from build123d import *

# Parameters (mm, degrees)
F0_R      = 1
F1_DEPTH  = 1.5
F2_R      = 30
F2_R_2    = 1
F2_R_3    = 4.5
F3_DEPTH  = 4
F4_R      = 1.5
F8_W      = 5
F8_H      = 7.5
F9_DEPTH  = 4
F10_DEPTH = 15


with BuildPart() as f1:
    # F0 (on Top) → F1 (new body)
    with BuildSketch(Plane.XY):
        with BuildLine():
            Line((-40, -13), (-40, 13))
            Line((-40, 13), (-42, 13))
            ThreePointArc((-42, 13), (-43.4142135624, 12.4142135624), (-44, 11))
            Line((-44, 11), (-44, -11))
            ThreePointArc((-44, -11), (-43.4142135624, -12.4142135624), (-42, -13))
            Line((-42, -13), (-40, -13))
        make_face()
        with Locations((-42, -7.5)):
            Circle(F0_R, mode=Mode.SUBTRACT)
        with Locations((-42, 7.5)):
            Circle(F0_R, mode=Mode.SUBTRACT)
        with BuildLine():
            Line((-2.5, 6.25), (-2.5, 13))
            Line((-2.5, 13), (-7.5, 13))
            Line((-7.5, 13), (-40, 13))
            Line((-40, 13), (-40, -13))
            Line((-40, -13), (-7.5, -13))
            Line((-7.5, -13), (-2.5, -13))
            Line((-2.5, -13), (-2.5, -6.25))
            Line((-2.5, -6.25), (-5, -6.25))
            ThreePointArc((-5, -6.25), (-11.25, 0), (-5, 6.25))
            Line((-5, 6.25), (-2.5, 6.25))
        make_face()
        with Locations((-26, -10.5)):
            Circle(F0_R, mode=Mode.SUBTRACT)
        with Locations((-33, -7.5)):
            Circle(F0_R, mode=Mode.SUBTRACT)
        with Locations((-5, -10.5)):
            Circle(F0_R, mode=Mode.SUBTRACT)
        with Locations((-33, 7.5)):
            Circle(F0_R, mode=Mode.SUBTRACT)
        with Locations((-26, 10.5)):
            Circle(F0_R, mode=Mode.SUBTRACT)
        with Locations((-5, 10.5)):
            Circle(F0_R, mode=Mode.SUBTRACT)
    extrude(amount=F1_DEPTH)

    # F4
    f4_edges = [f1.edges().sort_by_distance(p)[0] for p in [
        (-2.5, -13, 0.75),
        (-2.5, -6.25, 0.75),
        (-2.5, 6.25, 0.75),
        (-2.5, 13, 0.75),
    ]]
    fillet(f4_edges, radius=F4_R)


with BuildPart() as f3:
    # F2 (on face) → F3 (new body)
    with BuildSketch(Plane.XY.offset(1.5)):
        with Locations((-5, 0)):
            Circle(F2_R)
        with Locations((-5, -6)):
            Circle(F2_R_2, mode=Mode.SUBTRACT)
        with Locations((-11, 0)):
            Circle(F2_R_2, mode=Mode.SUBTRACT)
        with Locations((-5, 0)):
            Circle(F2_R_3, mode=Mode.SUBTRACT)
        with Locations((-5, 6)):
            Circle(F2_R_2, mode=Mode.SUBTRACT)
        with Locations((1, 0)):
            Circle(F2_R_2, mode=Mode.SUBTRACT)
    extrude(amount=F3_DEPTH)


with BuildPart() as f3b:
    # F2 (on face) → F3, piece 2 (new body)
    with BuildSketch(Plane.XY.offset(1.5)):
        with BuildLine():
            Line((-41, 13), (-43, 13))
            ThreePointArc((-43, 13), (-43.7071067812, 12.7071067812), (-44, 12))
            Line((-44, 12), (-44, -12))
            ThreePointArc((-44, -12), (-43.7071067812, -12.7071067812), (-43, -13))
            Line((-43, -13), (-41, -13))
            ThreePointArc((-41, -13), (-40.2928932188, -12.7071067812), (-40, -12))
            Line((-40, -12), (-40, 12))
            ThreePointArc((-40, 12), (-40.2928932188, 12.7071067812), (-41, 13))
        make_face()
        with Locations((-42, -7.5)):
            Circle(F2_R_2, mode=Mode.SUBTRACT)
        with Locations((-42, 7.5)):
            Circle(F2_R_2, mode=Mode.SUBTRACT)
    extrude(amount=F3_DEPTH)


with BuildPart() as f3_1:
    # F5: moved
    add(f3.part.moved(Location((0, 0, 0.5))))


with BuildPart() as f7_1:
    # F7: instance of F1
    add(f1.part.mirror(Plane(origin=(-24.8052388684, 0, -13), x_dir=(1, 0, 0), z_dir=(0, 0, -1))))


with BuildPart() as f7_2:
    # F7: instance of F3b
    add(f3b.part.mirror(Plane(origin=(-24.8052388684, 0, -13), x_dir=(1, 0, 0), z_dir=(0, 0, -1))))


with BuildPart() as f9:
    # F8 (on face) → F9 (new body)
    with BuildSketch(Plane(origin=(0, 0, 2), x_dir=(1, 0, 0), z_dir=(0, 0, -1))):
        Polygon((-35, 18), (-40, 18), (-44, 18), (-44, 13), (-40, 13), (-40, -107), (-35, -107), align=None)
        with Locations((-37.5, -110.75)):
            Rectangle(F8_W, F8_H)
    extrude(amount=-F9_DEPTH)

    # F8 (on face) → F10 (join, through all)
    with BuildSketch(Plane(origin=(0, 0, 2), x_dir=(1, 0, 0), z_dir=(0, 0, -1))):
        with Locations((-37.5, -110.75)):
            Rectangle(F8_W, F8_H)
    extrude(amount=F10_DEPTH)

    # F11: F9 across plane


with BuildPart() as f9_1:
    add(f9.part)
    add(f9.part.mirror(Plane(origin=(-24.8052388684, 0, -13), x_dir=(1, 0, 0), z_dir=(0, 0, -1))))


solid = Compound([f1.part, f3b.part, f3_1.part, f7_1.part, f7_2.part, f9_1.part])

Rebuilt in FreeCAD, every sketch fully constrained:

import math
import FreeCAD as App
import Part
import Sketcher
from FreeCAD import Vector
Q = App.Units.Quantity


def edges_at(feature, points):
    """Names of the edges that pass closest to the given points."""
    edges = feature.Shape.Edges
    near = lambda p: min(range(len(edges)), key=lambda i: edges[i].distToShape(Part.Vertex(*p))[0])
    return sorted({f"Edge{near(p) + 1}" for p in points})

doc = App.newDocument("Part")
params = doc.addObject("Spreadsheet::Sheet", "Params")
for row, (alias, value) in enumerate([
    ("sketch1_diameter", "2 mm"),
    ("sketch1_radius", "2 mm"),
    ("sketch1_height", "22 mm"),
    ("sketch1_radius2", "6.25 mm"),
    ("sketch1_width", "39.5 mm"),
    ("pad1_length", "1.5 mm"),
    ("fillet_radius", "1.5 mm"),
    ("sketch2_diameter", "60 mm"),
    ("sketch2_diameter2", "2 mm"),
    ("sketch2_diameter3", "9 mm"),
    ("pad2_length", "4 mm"),
    ("sketch3_diameter", "2 mm"),
    ("sketch3_width", "2 mm"),
    ("sketch3_height", "24 mm"),
    ("pad3_length", "4 mm"),
    ("sketch4_width", "9 mm"),
    ("sketch4_width2", "4 mm"),
    ("sketch4_height", "127.5 mm"),
    ("pad4_length", "4 mm"),
    ("sketch5_width", "5 mm"),
    ("sketch5_height", "7.5 mm"),
    ("pad5_length", "15 mm"),
], start=1):
    params.set(f"A{row}", alias)
    params.set(f"B{row}", "=" + value)
    params.setAlias(f"B{row}", alias)

body = doc.addObject("PartDesign::Body", "Body")

# Sketch on XY plane
sketch1 = body.newObject("Sketcher::SketchObject", "Sketch")
sketch1.AttachmentSupport = (doc.getObject("XY_Plane"), [""])
sketch1.MapMode = "FlatFace"
sketch1.addGeometry([
    Part.LineSegment(Vector(-42, -13, 0), Vector(-2.5, -13, 0)),  # 0
    Part.LineSegment(Vector(-2.5, -13, 0), Vector(-2.5, -6.2, 0)),  # 1
    Part.LineSegment(Vector(-2.5, -6.2, 0), Vector(-5, -6.2, 0)),  # 2
    Part.ArcOfCircle(Part.Circle(Vector(-5, 0, 0), Vector(0, 0, 1), 6.2), math.radians(90), math.radians(270)),  # 3
    Part.LineSegment(Vector(-5, 6.2, 0), Vector(-2.5, 6.2, 0)),  # 4
    Part.LineSegment(Vector(-2.5, 6.2, 0), Vector(-2.5, 13, 0)),  # 5
    Part.LineSegment(Vector(-2.5, 13, 0), Vector(-42, 13, 0)),  # 6
    Part.ArcOfCircle(Part.Circle(Vector(-42, 11, 0), Vector(0, 0, 1), 2), math.radians(90), math.radians(180)),  # 7
    Part.LineSegment(Vector(-44, 11, 0), Vector(-44, -11, 0)),  # 8
    Part.ArcOfCircle(Part.Circle(Vector(-42, -11, 0), Vector(0, 0, 1), 2), math.radians(180), math.radians(270)),  # 9
    Part.Circle(Vector(-42, -7.5, 0), Vector(0, 0, 1), 1),  # 10
    Part.Circle(Vector(-26, -10.5, 0), Vector(0, 0, 1), 1),  # 11
    Part.Circle(Vector(-33, -7.5, 0), Vector(0, 0, 1), 1),  # 12
    Part.Circle(Vector(-5, -10.5, 0), Vector(0, 0, 1), 1),  # 13
    Part.Circle(Vector(-42, 7.5, 0), Vector(0, 0, 1), 1),  # 14
    Part.Circle(Vector(-33, 7.5, 0), Vector(0, 0, 1), 1),  # 15
    Part.Circle(Vector(-26, 10.5, 0), Vector(0, 0, 1), 1),  # 16
    Part.Circle(Vector(-5, 10.5, 0), Vector(0, 0, 1), 1),  # 17
], False)
sketch1.addConstraint([
    Sketcher.Constraint("Coincident", 0, 2, 1, 1),
    Sketcher.Constraint("Coincident", 1, 2, 2, 1),
    Sketcher.Constraint("Tangent", 2, 2, 3, 2),
    Sketcher.Constraint("Tangent", 3, 1, 4, 1),
    Sketcher.Constraint("Coincident", 4, 2, 5, 1),
    Sketcher.Constraint("Coincident", 5, 2, 6, 1),
    Sketcher.Constraint("Tangent", 6, 2, 7, 1),
    Sketcher.Constraint("Tangent", 7, 2, 8, 1),
    Sketcher.Constraint("Tangent", 8, 2, 9, 1),
    Sketcher.Constraint("Tangent", 9, 2, 0, 1),
    Sketcher.Constraint("Horizontal", 0),
    Sketcher.Constraint("Vertical", 1),
    Sketcher.Constraint("Horizontal", 2),
    Sketcher.Constraint("Horizontal", 4),
    Sketcher.Constraint("Vertical", 5),
    Sketcher.Constraint("Horizontal", 6),
    Sketcher.Constraint("Vertical", 8),
    Sketcher.Constraint("Equal", 7, 9),
    Sketcher.Constraint("Equal", 10, 11),
    Sketcher.Constraint("Equal", 11, 12),
    Sketcher.Constraint("Equal", 12, 13),
    Sketcher.Constraint("Equal", 13, 14),
    Sketcher.Constraint("Equal", 14, 15),
    Sketcher.Constraint("Equal", 15, 16),
    Sketcher.Constraint("Equal", 16, 17),
    Sketcher.Constraint("Symmetric", 10, 3, 14, 3, -1),
    Sketcher.Constraint("Symmetric", 12, 3, 15, 3, -1),
    Sketcher.Constraint("Symmetric", 11, 3, 16, 3, -1),
    Sketcher.Constraint("Symmetric", 13, 3, 17, 3, -1),
    Sketcher.Constraint("Symmetric", 1, 2, 4, 2, -1),
    Sketcher.Constraint("Horizontal", 10, 3, 12, 3),
    Sketcher.Constraint("Horizontal", 11, 3, 13, 3),
    Sketcher.Constraint("Vertical", 9, 3, 10, 3),
    Sketcher.Constraint("Vertical", 3, 3, 13, 3),
    Sketcher.Constraint("Equal", 1, 5),
    Sketcher.Constraint("Diameter", 10, Q("2 mm")),
    Sketcher.Constraint("Radius", 7, Q("2 mm")),
    Sketcher.Constraint("DistanceY", 8, 2, 8, 1, Q("22 mm")),
    Sketcher.Constraint("Radius", 3, Q("6.25 mm")),
    Sketcher.Constraint("DistanceX", 0, 1, 0, 2, Q("39.5 mm")),
    Sketcher.Constraint("DistanceX", 2, 2, 2, 1, Q("2.5 mm")),
    Sketcher.Constraint("DistanceX", 3, 3, -1, 1, Q("5 mm")),
    Sketcher.Constraint("DistanceX", 11, 3, -1, 1, Q("26 mm")),
    Sketcher.Constraint("DistanceX", 12, 3, -1, 1, Q("33 mm")),
    Sketcher.Constraint("DistanceY", 11, 3, 10, 3, Q("3 mm")),
    Sketcher.Constraint("DistanceY", 10, 3, 14, 3, Q("15 mm")),
])
sketch1.setExpression("Constraints[35]", "Params.sketch1_diameter")
sketch1.setExpression("Constraints[36]", "Params.sketch1_radius")
sketch1.setExpression("Constraints[37]", "Params.sketch1_height")
sketch1.setExpression("Constraints[38]", "Params.sketch1_radius2")
sketch1.setExpression("Constraints[39]", "Params.sketch1_width")
pad1 = body.newObject("PartDesign::Pad", "Pad")
pad1.Profile = sketch1
pad1.setExpression("Length", "Params.pad1_length")
doc.recompute()

fillet = body.newObject("PartDesign::Fillet", "Fillet")
fillet.Base = (pad1, edges_at(pad1, [
    (-2.5, -13, 0.75),
    (-2.5, -6.25, 0.75),
    (-2.5, 6.25, 0.75),
    (-2.5, 13, 0.75),
]))
fillet.setExpression("Radius", "Params.fillet_radius")
body2 = doc.addObject("PartDesign::Body", "Body001")

# Sketch on XY plane
sketch2 = body2.newObject("Sketcher::SketchObject", "Sketch001")
sketch2.AttachmentSupport = (doc.getObject("XY_Plane001"), [""])
sketch2.MapMode = "FlatFace"
sketch2.AttachmentOffset = App.Placement(Vector(0, 0, 1.5), App.Rotation())
sketch2.addGeometry([
    Part.Circle(Vector(-5, 0, 0), Vector(0, 0, 1), 30),  # 0
    Part.Circle(Vector(-5, -6, 0), Vector(0, 0, 1), 1),  # 1
    Part.Circle(Vector(-11, 0, 0), Vector(0, 0, 1), 1),  # 2
    Part.Circle(Vector(-5, 0, 0), Vector(0, 0, 1), 4.5),  # 3
    Part.Circle(Vector(1, 0, 0), Vector(0, 0, 1), 1),  # 4
    Part.Circle(Vector(-5, 6, 0), Vector(0, 0, 1), 1),  # 5
], False)
sketch2.addConstraint([
    Sketcher.Constraint("Coincident", 3, 3, 0, 3),
    Sketcher.Constraint("Equal", 1, 2),
    Sketcher.Constraint("Equal", 2, 4),
    Sketcher.Constraint("Equal", 4, 5),
    Sketcher.Constraint("Symmetric", 1, 3, 5, 3, -1),
    Sketcher.Constraint("PointOnObject", 0, 3, -1),
    Sketcher.Constraint("PointOnObject", 2, 3, -1),
    Sketcher.Constraint("PointOnObject", 4, 3, -1),
    Sketcher.Constraint("Vertical", 0, 3, 1, 3),
    Sketcher.Constraint("Diameter", 0, Q("60 mm")),
    Sketcher.Constraint("Diameter", 1, Q("2 mm")),
    Sketcher.Constraint("Diameter", 3, Q("9 mm")),
    Sketcher.Constraint("DistanceX", 0, 3, -1, 1, Q("5 mm")),
    Sketcher.Constraint("DistanceY", 1, 3, -1, 1, Q("6 mm")),
    Sketcher.Constraint("DistanceX", 2, 3, -1, 1, Q("11 mm")),
    Sketcher.Constraint("DistanceX", -1, 1, 4, 3, Q("1 mm")),
])
sketch2.setExpression("Constraints[9]", "Params.sketch2_diameter")
sketch2.setExpression("Constraints[10]", "Params.sketch2_diameter2")
sketch2.setExpression("Constraints[11]", "Params.sketch2_diameter3")
pad2 = body2.newObject("PartDesign::Pad", "Pad001")
pad2.Profile = sketch2
pad2.setExpression("Length", "Params.pad2_length")
body3 = doc.addObject("PartDesign::Body", "Body002")

# Sketch on XY plane
sketch3 = body3.newObject("Sketcher::SketchObject", "Sketch002")
sketch3.AttachmentSupport = (doc.getObject("XY_Plane002"), [""])
sketch3.MapMode = "FlatFace"
sketch3.AttachmentOffset = App.Placement(Vector(0, 0, 1.5), App.Rotation())
sketch3.addGeometry([
    Part.LineSegment(Vector(-41, 13, 0), Vector(-43, 13, 0)),  # 0
    Part.ArcOfCircle(Part.Circle(Vector(-43, 12, 0), Vector(0, 0, 1), 1), math.radians(90), math.radians(180)),  # 1
    Part.LineSegment(Vector(-44, 12, 0), Vector(-44, -12, 0)),  # 2
    Part.ArcOfCircle(Part.Circle(Vector(-43, -12, 0), Vector(0, 0, 1), 1), math.radians(180), math.radians(270)),  # 3
    Part.LineSegment(Vector(-43, -13, 0), Vector(-41, -13, 0)),  # 4
    Part.ArcOfCircle(Part.Circle(Vector(-41, -12, 0), Vector(0, 0, 1), 1), math.radians(-90), math.radians(0)),  # 5
    Part.LineSegment(Vector(-40, -12, 0), Vector(-40, 12, 0)),  # 6
    Part.ArcOfCircle(Part.Circle(Vector(-41, 12, 0), Vector(0, 0, 1), 1), math.radians(0), math.radians(90)),  # 7
    Part.Circle(Vector(-42, -7.5, 0), Vector(0, 0, 1), 1),  # 8
    Part.Circle(Vector(-42, 7.5, 0), Vector(0, 0, 1), 1),  # 9
], False)
sketch3.addConstraint([
    Sketcher.Constraint("Tangent", 0, 2, 1, 1),
    Sketcher.Constraint("Tangent", 1, 2, 2, 1),
    Sketcher.Constraint("Tangent", 2, 2, 3, 1),
    Sketcher.Constraint("Tangent", 3, 2, 4, 1),
    Sketcher.Constraint("Tangent", 4, 2, 5, 1),
    Sketcher.Constraint("Tangent", 5, 2, 6, 1),
    Sketcher.Constraint("Tangent", 6, 2, 7, 1),
    Sketcher.Constraint("Tangent", 7, 2, 0, 1),
    Sketcher.Constraint("Horizontal", 0),
    Sketcher.Constraint("Vertical", 2),
    Sketcher.Constraint("Horizontal", 4),
    Sketcher.Constraint("Vertical", 6),
    Sketcher.Constraint("Equal", 1, 3),
    Sketcher.Constraint("Equal", 3, 5),
    Sketcher.Constraint("Equal", 5, 7),
    Sketcher.Constraint("Equal", 7, 8),
    Sketcher.Constraint("Equal", 8, 9),
    Sketcher.Constraint("Symmetric", 8, 3, 9, 3, -1),
    Sketcher.Constraint("Diameter", 8, Q("2 mm")),
    Sketcher.Constraint("DistanceX", 0, 2, 0, 1, Q("2 mm")),
    Sketcher.Constraint("DistanceY", 2, 2, 2, 1, Q("24 mm")),
    Sketcher.Constraint("DistanceX", 1, 3, -1, 1, Q("43 mm")),
    Sketcher.Constraint("DistanceY", -1, 1, 1, 3, Q("12 mm")),
    Sketcher.Constraint("DistanceX", 8, 3, -1, 1, Q("42 mm")),
    Sketcher.Constraint("DistanceY", 8, 3, 9, 3, Q("15 mm")),
])
sketch3.setExpression("Constraints[18]", "Params.sketch3_diameter")
sketch3.setExpression("Constraints[19]", "Params.sketch3_width")
sketch3.setExpression("Constraints[20]", "Params.sketch3_height")
pad3 = body3.newObject("PartDesign::Pad", "Pad002")
pad3.Profile = sketch3
pad3.setExpression("Length", "Params.pad3_length")
body4 = doc.addObject("PartDesign::Body", "Body003")
doc.recompute()

body2.Placement = App.Placement(Vector(0, 0, 0.5), App.Rotation(Vector(0, 0, 1), 0))
boolean = body4.newObject("PartDesign::Boolean", "Boolean")
boolean.Type = "Fuse"
boolean.addObjects([body2])
body5 = doc.addObject("PartDesign::Body", "Body004")
doc.recompute()

mirroring = doc.addObject("Part::Mirroring", "Mirroring")
mirroring.Source = body
mirroring.Base = Vector(-24.805239, 0, -13)
mirroring.Normal = Vector(0, 0, -1)
body5.BaseFeature = mirroring
doc.recompute()
body6 = doc.addObject("PartDesign::Body", "Body005")
doc.recompute()

mirroring2 = doc.addObject("Part::Mirroring", "Mirroring001")
mirroring2.Source = body3
mirroring2.Base = Vector(-24.805239, 0, -13)
mirroring2.Normal = Vector(0, 0, -1)
body6.BaseFeature = mirroring2
doc.recompute()
body7 = doc.addObject("PartDesign::Body", "Body006")

# Sketch on XY plane
sketch4 = body7.newObject("Sketcher::SketchObject", "Sketch003")
sketch4.AttachmentSupport = (doc.getObject("XY_Plane006"), [""])
sketch4.MapMode = "FlatFace"
sketch4.AttachmentOffset = App.Placement(Vector(0, 0, 2), App.Rotation())
sketch4.addGeometry([
    Part.LineSegment(Vector(-35, -18, 0), Vector(-44, -18, 0)),  # 0
    Part.LineSegment(Vector(-44, -18, 0), Vector(-44, -13, 0)),  # 1
    Part.LineSegment(Vector(-44, -13, 0), Vector(-40, -13, 0)),  # 2
    Part.LineSegment(Vector(-40, -13, 0), Vector(-40, 114.5, 0)),  # 3
    Part.LineSegment(Vector(-40, 114.5, 0), Vector(-35, 114.5, 0)),  # 4
    Part.LineSegment(Vector(-35, 114.5, 0), Vector(-35, -18, 0)),  # 5
], False)
sketch4.addConstraint([
    Sketcher.Constraint("Coincident", 0, 2, 1, 1),
    Sketcher.Constraint("Coincident", 1, 2, 2, 1),
    Sketcher.Constraint("Coincident", 2, 2, 3, 1),
    Sketcher.Constraint("Coincident", 3, 2, 4, 1),
    Sketcher.Constraint("Coincident", 4, 2, 5, 1),
    Sketcher.Constraint("Coincident", 5, 2, 0, 1),
    Sketcher.Constraint("Horizontal", 0),
    Sketcher.Constraint("Vertical", 1),
    Sketcher.Constraint("Horizontal", 2),
    Sketcher.Constraint("Vertical", 3),
    Sketcher.Constraint("Horizontal", 4),
    Sketcher.Constraint("Vertical", 5),
    Sketcher.Constraint("Equal", 4, 1),
    Sketcher.Constraint("DistanceX", 0, 2, 0, 1, Q("9 mm")),
    Sketcher.Constraint("DistanceX", 2, 1, 2, 2, Q("4 mm")),
    Sketcher.Constraint("DistanceY", 3, 1, 3, 2, Q("127.5 mm")),
    Sketcher.Constraint("DistanceX", 0, 2, -1, 1, Q("44 mm")),
    Sketcher.Constraint("DistanceY", 0, 2, -1, 1, Q("18 mm")),
])
sketch4.setExpression("Constraints[13]", "Params.sketch4_width")
sketch4.setExpression("Constraints[14]", "Params.sketch4_width2")
sketch4.setExpression("Constraints[15]", "Params.sketch4_height")
pad4 = body7.newObject("PartDesign::Pad", "Pad003")
pad4.Profile = sketch4
pad4.setExpression("Length", "Params.pad4_length")

# Sketch on XY plane
sketch5 = body7.newObject("Sketcher::SketchObject", "Sketch004")
sketch5.AttachmentSupport = (doc.getObject("XY_Plane006"), [""])
sketch5.MapMode = "FlatFace"
sketch5.AttachmentOffset = App.Placement(Vector(0, 0, 2), App.Rotation())
sketch5.addGeometry([
    Part.LineSegment(Vector(-40, 107, 0), Vector(-40, 114, 0)),
    Part.LineSegment(Vector(-40, 114, 0), Vector(-35, 114, 0)),
    Part.LineSegment(Vector(-35, 114, 0), Vector(-35, 107, 0)),
    Part.LineSegment(Vector(-35, 107, 0), Vector(-40, 107, 0)),
], False)
sketch5.addConstraint([
    Sketcher.Constraint("Coincident", 0, 2, 1, 1),
    Sketcher.Constraint("Coincident", 1, 2, 2, 1),
    Sketcher.Constraint("Coincident", 2, 2, 3, 1),
    Sketcher.Constraint("Coincident", 3, 2, 0, 1),
    Sketcher.Constraint("Vertical", 0),
    Sketcher.Constraint("Horizontal", 1),
    Sketcher.Constraint("Vertical", 2),
    Sketcher.Constraint("Horizontal", 3),
    Sketcher.Constraint("DistanceX", 1, 1, 1, 2, Q("5 mm")),
    Sketcher.Constraint("DistanceY", 0, 1, 0, 2, Q("7.5 mm")),
    Sketcher.Constraint("DistanceX", 0, 2, -1, 1, Q("40 mm")),
    Sketcher.Constraint("DistanceY", -1, 1, 2, 2, Q("107 mm")),
])
sketch5.setExpression("Constraints[8]", "Params.sketch5_width")
sketch5.setExpression("Constraints[9]", "Params.sketch5_height")
pad5 = body7.newObject("PartDesign::Pad", "Pad004")
pad5.Profile = sketch5
pad5.setExpression("Length", "Params.pad5_length")
pad5.Reversed = True
body8 = doc.addObject("PartDesign::Body", "Body007")
doc.recompute()

body8.BaseFeature = body7
doc.recompute()

mirroring3 = doc.addObject("Part::Mirroring", "Mirroring002")
mirroring3.Source = body7
mirroring3.Base = Vector(-24.805239, 0, -13)
mirroring3.Normal = Vector(0, 0, -1)
body9 = doc.addObject("PartDesign::Body", "Body008")
body9.BaseFeature = mirroring3
boolean2 = body8.newObject("PartDesign::Boolean", "Boolean001")
boolean2.Type = "Fuse"
boolean2.addObjects([body9])
doc.recompute()
mirroring.Visibility = False
mirroring2.Visibility = False
mirroring3.Visibility = False

doc.recompute()
